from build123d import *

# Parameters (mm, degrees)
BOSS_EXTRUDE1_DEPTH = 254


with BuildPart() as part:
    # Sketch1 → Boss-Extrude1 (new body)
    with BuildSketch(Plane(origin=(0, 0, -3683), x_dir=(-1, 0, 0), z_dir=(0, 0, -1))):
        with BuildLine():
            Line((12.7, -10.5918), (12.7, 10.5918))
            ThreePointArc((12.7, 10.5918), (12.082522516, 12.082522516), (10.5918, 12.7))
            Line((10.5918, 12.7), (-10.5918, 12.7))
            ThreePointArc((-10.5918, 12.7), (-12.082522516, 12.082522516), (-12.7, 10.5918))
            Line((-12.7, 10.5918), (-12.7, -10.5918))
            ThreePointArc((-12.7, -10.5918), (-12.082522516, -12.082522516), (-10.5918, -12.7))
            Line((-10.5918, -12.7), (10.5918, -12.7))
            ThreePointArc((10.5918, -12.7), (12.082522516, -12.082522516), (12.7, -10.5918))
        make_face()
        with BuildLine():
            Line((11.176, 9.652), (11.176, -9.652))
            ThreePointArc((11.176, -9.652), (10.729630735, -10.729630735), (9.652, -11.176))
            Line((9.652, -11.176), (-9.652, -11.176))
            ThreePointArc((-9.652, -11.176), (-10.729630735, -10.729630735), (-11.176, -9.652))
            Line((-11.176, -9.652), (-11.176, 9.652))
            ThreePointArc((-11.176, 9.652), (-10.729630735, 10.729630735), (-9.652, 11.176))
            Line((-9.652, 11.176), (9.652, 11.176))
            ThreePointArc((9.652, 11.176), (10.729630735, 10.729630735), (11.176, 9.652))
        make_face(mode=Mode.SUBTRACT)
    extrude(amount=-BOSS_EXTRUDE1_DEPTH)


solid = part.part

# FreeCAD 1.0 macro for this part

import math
import FreeCAD as App
import Part
import Sketcher
Q = App.Units.Quantity

doc = App.newDocument("Part")
body = doc.addObject("PartDesign::Body", "Body")

# Sketch on XY plane
sketch1 = body.newObject("Sketcher::SketchObject", "Sketch")
sketch1.AttachmentSupport = (doc.getObject("XY_Plane"), [""])
sketch1.MapMode = "FlatFace"
sketch1.AttachmentOffset = App.Placement(App.Vector(0, 0, -145 * 25.4), App.Rotation())
sketch1.addGeometry([
    Part.LineSegment(App.Vector(-12.7, -10.5918, 0), App.Vector(-12.7, 10.5918, 0)),  # 0
    Part.ArcOfCircle(Part.Circle(App.Vector(-10.5918, 10.5918, 0), App.Vector(0, 0, 1), 2.1082), math.radians(90), math.radians(180)),  # 1
    Part.LineSegment(App.Vector(-10.5918, 12.7, 0), App.Vector(10.5918, 12.7, 0)),  # 2
    Part.ArcOfCircle(Part.Circle(App.Vector(10.5918, 10.5918, 0), App.Vector(0, 0, 1), 2.1082), math.radians(0), math.radians(90)),  # 3
    Part.LineSegment(App.Vector(12.7, 10.5918, 0), App.Vector(12.7, -10.5918, 0)),  # 4
    Part.ArcOfCircle(Part.Circle(App.Vector(10.5918, -10.5918, 0), App.Vector(0, 0, 1), 2.1082), math.radians(-90), math.radians(0)),  # 5
    Part.LineSegment(App.Vector(10.5918, -12.7, 0), App.Vector(-10.5918, -12.7, 0)),  # 6
    Part.ArcOfCircle(Part.Circle(App.Vector(-10.5918, -10.5918, 0), App.Vector(0, 0, 1), 2.1082), math.radians(180), math.radians(270)),  # 7
    Part.ArcOfCircle(Part.Circle(App.Vector(-9.652, 9.652, 0), App.Vector(0, 0, 1), 1.524), math.radians(90), math.radians(180)),  # 8
    Part.LineSegment(App.Vector(-11.176, 9.652, 0), App.Vector(-11.176, -9.652, 0)),  # 9
    Part.ArcOfCircle(Part.Circle(App.Vector(-9.652, -9.652, 0), App.Vector(0, 0, 1), 1.524), math.radians(180), math.radians(270)),  # 10
    Part.LineSegment(App.Vector(-9.652, -11.176, 0), App.Vector(9.652, -11.176, 0)),  # 11
    Part.ArcOfCircle(Part.Circle(App.Vector(9.652, -9.652, 0), App.Vector(0, 0, 1), 1.524), math.radians(-90), math.radians(0)),  # 12
    Part.LineSegment(App.Vector(11.176, -9.652, 0), App.Vector(11.176, 9.652, 0)),  # 13
    Part.ArcOfCircle(Part.Circle(App.Vector(9.652, 9.652, 0), App.Vector(0, 0, 1), 1.524), math.radians(0), math.radians(90)),  # 14
    Part.LineSegment(App.Vector(9.652, 11.176, 0), App.Vector(-9.652, 11.176, 0)),  # 15
], False)
sketch1.addConstraint([
    Sketcher.Constraint("Tangent", 0, 2, 1, 2),
    Sketcher.Constraint("Tangent", 1, 1, 2, 1),
    Sketcher.Constraint("Tangent", 2, 2, 3, 2),
    Sketcher.Constraint("Tangent", 3, 1, 4, 1),
    Sketcher.Constraint("Tangent", 4, 2, 5, 2),
    Sketcher.Constraint("Tangent", 5, 1, 6, 1),
    Sketcher.Constraint("Tangent", 6, 2, 7, 2),
    Sketcher.Constraint("Tangent", 7, 1, 0, 1),
    Sketcher.Constraint("Tangent", 8, 2, 9, 1),
    Sketcher.Constraint("Tangent", 9, 2, 10, 1),
    Sketcher.Constraint("Tangent", 10, 2, 11, 1),
    Sketcher.Constraint("Tangent", 11, 2, 12, 1),
    Sketcher.Constraint("Tangent", 12, 2, 13, 1),
    Sketcher.Constraint("Tangent", 13, 2, 14, 1),
    Sketcher.Constraint("Tangent", 14, 2, 15, 1),
    Sketcher.Constraint("Tangent", 15, 2, 8, 1),
    Sketcher.Constraint("Vertical", 0),
    Sketcher.Constraint("Horizontal", 2),
    Sketcher.Constraint("Vertical", 4),
    Sketcher.Constraint("Horizontal", 6),
    Sketcher.Constraint("Vertical", 9),
    Sketcher.Constraint("Horizontal", 11),
    Sketcher.Constraint("Vertical", 13),
    Sketcher.Constraint("Horizontal", 15),
    Sketcher.Constraint("Equal", 1, 3),
    Sketcher.Constraint("Equal", 3, 5),
    Sketcher.Constraint("Equal", 5, 7),
    Sketcher.Constraint("Equal", 8, 10),
    Sketcher.Constraint("Equal", 10, 12),
    Sketcher.Constraint("Equal", 12, 14),
    Sketcher.Constraint("Symmetric", 1, 3, 5, 3, -1, 1),
    Sketcher.Constraint("Symmetric", 8, 3, 12, 3, -1, 1),
    Sketcher.Constraint("Equal", 6, 0),
    Sketcher.Constraint("Equal", 15, 9),
    Sketcher.Constraint("Radius", 8, Q("0.06 in")),
    Sketcher.Constraint("Radius", 1, Q("0.083 in")),
    Sketcher.Constraint("DistanceX", 11, 1, 11, 2, Q("0.76 in")),
    Sketcher.Constraint("DistanceX", 0, 2, -1, 1, Q("0.5 in")),
])
pad1 = body.newObject("PartDesign::Pad", "Pad")
pad1.Profile = sketch1
pad1.Length = Q("10 in")

doc.recompute()
